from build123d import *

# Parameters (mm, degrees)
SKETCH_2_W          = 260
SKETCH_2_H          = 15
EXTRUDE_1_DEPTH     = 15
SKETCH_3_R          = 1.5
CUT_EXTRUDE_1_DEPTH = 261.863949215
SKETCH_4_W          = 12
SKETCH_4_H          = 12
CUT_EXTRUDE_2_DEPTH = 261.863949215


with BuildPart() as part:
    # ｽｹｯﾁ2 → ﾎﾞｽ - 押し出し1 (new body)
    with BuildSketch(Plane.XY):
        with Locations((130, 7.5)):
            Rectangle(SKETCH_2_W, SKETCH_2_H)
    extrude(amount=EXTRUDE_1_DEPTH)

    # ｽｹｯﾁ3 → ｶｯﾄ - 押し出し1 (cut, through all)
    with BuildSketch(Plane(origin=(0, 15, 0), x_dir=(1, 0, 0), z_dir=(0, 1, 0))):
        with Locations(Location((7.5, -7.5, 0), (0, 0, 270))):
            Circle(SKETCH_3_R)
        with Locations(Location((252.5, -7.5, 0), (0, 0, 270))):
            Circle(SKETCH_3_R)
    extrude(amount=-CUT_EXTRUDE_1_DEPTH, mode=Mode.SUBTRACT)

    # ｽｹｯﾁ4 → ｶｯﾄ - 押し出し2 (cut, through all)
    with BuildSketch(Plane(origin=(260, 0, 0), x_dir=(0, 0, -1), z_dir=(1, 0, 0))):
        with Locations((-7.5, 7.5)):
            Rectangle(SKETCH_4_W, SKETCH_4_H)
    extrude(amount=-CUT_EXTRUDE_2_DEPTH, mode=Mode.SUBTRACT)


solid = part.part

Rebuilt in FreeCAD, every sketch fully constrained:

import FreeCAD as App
import Part
import Sketcher
from FreeCAD import Vector
Q = App.Units.Quantity


def add_polygon(sketch, points):
    """Adds a closed chain of lines whose ends are joined by coincident constraints."""
    first, n = sketch.GeometryCount, len(points)
    for a, b in zip(points, points[1:] + points[:1]):
        sketch.addGeometry(Part.LineSegment(App.Vector(*a, 0), App.Vector(*b, 0)), False)
    for i in range(n):
        sketch.addConstraint(Sketcher.Constraint("Coincident", first + i, 2, first + (i + 1) % n, 1))

doc = App.newDocument("Part")
body = doc.addObject("PartDesign::Body", "Body")

# Sketch on XY plane
sketch1 = body.newObject("Sketcher::SketchObject", "Sketch")
sketch1.AttachmentSupport = (doc.getObject("XY_Plane"), [""])
sketch1.MapMode = "FlatFace"
add_polygon(sketch1, [(0, 15), (0, 0), (260, 0), (260, 15)])  # lines 0-3
sketch1.addConstraint(Sketcher.Constraint("Vertical", 0))
sketch1.addConstraint(Sketcher.Constraint("Horizontal", 1))
sketch1.addConstraint(Sketcher.Constraint("Vertical", 2))
sketch1.addConstraint(Sketcher.Constraint("Horizontal", 3))
sketch1.addConstraint(Sketcher.Constraint("Coincident", 0, 2, -1, 1))
sketch1.addConstraint(Sketcher.Constraint("DistanceX", 1, 1, 1, 2, Q("260 mm")))
sketch1.addConstraint(Sketcher.Constraint("DistanceY", 0, 2, 0, 1, Q("15 mm")))
pad1 = body.newObject("PartDesign::Pad", "Pad")
pad1.Profile = sketch1
pad1.Length = 15

# Sketch on XZ plane
sketch2 = body.newObject("Sketcher::SketchObject", "Sketch001")
sketch2.AttachmentSupport = (doc.getObject("XZ_Plane"), [""])
sketch2.MapMode = "FlatFace"
sketch2.AttachmentOffset = App.Placement(Vector(0, 0, -15), App.Rotation())
sketch2.addGeometry(Part.Circle(Vector(7.5, 7.5, 0), Vector(0, 0, 1), 1.5), False)
sketch2.addGeometry(Part.Circle(Vector(252.5, 7.5, 0), Vector(0, 0, 1), 1.5), False)
sketch2.addConstraint(Sketcher.Constraint("Equal", 0, 1))
sketch2.addConstraint(Sketcher.Constraint("Horizontal", 0, 3, 1, 3))
sketch2.addConstraint(Sketcher.Constraint("Diameter", 0, Q("3 mm")))
sketch2.addConstraint(Sketcher.Constraint("DistanceX", 0, 3, 1, 3, Q("245 mm")))
sketch2.addConstraint(Sketcher.Constraint("DistanceX", -1, 1, 0, 3, Q("7.5 mm")))
sketch2.addConstraint(Sketcher.Constraint("DistanceY", -1, 1, 0, 3, Q("7.5 mm")))
pocket1 = body.newObject("PartDesign::Pocket", "Pocket")
pocket1.Profile = sketch2
pocket1.Type = "ThroughAll"
pocket1.Reversed = True

# Sketch on YZ plane
sketch3 = body.newObject("Sketcher::SketchObject", "Sketch002")
sketch3.AttachmentSupport = (doc.getObject("YZ_Plane"), [""])
sketch3.MapMode = "FlatFace"
sketch3.AttachmentOffset = App.Placement(Vector(0, 0, 260), App.Rotation())
add_polygon(sketch3, [(14, 14), (2, 14), (2, 2), (14, 2)])  # lines 0-3
sketch3.addConstraint(Sketcher.Constraint("Horizontal", 0))
sketch3.addConstraint(Sketcher.Constraint("Vertical", 1))
sketch3.addConstraint(Sketcher.Constraint("Horizontal", 2))
sketch3.addConstraint(Sketcher.Constraint("Vertical", 3))
sketch3.addConstraint(Sketcher.Constraint("Equal", 2, 1))
sketch3.addConstraint(Sketcher.Constraint("DistanceX", 0, 2, 0, 1, Q("12 mm")))
sketch3.addConstraint(Sketcher.Constraint("DistanceX", -1, 1, 0, 2, Q("1.5 mm")))
sketch3.addConstraint(Sketcher.Constraint("DistanceY", -1, 1, 0, 2, Q("13.5 mm")))
pocket2 = body.newObject("PartDesign::Pocket", "Pocket001")
pocket2.Profile = sketch3
pocket2.Type = "ThroughAll"

doc.recompute()
